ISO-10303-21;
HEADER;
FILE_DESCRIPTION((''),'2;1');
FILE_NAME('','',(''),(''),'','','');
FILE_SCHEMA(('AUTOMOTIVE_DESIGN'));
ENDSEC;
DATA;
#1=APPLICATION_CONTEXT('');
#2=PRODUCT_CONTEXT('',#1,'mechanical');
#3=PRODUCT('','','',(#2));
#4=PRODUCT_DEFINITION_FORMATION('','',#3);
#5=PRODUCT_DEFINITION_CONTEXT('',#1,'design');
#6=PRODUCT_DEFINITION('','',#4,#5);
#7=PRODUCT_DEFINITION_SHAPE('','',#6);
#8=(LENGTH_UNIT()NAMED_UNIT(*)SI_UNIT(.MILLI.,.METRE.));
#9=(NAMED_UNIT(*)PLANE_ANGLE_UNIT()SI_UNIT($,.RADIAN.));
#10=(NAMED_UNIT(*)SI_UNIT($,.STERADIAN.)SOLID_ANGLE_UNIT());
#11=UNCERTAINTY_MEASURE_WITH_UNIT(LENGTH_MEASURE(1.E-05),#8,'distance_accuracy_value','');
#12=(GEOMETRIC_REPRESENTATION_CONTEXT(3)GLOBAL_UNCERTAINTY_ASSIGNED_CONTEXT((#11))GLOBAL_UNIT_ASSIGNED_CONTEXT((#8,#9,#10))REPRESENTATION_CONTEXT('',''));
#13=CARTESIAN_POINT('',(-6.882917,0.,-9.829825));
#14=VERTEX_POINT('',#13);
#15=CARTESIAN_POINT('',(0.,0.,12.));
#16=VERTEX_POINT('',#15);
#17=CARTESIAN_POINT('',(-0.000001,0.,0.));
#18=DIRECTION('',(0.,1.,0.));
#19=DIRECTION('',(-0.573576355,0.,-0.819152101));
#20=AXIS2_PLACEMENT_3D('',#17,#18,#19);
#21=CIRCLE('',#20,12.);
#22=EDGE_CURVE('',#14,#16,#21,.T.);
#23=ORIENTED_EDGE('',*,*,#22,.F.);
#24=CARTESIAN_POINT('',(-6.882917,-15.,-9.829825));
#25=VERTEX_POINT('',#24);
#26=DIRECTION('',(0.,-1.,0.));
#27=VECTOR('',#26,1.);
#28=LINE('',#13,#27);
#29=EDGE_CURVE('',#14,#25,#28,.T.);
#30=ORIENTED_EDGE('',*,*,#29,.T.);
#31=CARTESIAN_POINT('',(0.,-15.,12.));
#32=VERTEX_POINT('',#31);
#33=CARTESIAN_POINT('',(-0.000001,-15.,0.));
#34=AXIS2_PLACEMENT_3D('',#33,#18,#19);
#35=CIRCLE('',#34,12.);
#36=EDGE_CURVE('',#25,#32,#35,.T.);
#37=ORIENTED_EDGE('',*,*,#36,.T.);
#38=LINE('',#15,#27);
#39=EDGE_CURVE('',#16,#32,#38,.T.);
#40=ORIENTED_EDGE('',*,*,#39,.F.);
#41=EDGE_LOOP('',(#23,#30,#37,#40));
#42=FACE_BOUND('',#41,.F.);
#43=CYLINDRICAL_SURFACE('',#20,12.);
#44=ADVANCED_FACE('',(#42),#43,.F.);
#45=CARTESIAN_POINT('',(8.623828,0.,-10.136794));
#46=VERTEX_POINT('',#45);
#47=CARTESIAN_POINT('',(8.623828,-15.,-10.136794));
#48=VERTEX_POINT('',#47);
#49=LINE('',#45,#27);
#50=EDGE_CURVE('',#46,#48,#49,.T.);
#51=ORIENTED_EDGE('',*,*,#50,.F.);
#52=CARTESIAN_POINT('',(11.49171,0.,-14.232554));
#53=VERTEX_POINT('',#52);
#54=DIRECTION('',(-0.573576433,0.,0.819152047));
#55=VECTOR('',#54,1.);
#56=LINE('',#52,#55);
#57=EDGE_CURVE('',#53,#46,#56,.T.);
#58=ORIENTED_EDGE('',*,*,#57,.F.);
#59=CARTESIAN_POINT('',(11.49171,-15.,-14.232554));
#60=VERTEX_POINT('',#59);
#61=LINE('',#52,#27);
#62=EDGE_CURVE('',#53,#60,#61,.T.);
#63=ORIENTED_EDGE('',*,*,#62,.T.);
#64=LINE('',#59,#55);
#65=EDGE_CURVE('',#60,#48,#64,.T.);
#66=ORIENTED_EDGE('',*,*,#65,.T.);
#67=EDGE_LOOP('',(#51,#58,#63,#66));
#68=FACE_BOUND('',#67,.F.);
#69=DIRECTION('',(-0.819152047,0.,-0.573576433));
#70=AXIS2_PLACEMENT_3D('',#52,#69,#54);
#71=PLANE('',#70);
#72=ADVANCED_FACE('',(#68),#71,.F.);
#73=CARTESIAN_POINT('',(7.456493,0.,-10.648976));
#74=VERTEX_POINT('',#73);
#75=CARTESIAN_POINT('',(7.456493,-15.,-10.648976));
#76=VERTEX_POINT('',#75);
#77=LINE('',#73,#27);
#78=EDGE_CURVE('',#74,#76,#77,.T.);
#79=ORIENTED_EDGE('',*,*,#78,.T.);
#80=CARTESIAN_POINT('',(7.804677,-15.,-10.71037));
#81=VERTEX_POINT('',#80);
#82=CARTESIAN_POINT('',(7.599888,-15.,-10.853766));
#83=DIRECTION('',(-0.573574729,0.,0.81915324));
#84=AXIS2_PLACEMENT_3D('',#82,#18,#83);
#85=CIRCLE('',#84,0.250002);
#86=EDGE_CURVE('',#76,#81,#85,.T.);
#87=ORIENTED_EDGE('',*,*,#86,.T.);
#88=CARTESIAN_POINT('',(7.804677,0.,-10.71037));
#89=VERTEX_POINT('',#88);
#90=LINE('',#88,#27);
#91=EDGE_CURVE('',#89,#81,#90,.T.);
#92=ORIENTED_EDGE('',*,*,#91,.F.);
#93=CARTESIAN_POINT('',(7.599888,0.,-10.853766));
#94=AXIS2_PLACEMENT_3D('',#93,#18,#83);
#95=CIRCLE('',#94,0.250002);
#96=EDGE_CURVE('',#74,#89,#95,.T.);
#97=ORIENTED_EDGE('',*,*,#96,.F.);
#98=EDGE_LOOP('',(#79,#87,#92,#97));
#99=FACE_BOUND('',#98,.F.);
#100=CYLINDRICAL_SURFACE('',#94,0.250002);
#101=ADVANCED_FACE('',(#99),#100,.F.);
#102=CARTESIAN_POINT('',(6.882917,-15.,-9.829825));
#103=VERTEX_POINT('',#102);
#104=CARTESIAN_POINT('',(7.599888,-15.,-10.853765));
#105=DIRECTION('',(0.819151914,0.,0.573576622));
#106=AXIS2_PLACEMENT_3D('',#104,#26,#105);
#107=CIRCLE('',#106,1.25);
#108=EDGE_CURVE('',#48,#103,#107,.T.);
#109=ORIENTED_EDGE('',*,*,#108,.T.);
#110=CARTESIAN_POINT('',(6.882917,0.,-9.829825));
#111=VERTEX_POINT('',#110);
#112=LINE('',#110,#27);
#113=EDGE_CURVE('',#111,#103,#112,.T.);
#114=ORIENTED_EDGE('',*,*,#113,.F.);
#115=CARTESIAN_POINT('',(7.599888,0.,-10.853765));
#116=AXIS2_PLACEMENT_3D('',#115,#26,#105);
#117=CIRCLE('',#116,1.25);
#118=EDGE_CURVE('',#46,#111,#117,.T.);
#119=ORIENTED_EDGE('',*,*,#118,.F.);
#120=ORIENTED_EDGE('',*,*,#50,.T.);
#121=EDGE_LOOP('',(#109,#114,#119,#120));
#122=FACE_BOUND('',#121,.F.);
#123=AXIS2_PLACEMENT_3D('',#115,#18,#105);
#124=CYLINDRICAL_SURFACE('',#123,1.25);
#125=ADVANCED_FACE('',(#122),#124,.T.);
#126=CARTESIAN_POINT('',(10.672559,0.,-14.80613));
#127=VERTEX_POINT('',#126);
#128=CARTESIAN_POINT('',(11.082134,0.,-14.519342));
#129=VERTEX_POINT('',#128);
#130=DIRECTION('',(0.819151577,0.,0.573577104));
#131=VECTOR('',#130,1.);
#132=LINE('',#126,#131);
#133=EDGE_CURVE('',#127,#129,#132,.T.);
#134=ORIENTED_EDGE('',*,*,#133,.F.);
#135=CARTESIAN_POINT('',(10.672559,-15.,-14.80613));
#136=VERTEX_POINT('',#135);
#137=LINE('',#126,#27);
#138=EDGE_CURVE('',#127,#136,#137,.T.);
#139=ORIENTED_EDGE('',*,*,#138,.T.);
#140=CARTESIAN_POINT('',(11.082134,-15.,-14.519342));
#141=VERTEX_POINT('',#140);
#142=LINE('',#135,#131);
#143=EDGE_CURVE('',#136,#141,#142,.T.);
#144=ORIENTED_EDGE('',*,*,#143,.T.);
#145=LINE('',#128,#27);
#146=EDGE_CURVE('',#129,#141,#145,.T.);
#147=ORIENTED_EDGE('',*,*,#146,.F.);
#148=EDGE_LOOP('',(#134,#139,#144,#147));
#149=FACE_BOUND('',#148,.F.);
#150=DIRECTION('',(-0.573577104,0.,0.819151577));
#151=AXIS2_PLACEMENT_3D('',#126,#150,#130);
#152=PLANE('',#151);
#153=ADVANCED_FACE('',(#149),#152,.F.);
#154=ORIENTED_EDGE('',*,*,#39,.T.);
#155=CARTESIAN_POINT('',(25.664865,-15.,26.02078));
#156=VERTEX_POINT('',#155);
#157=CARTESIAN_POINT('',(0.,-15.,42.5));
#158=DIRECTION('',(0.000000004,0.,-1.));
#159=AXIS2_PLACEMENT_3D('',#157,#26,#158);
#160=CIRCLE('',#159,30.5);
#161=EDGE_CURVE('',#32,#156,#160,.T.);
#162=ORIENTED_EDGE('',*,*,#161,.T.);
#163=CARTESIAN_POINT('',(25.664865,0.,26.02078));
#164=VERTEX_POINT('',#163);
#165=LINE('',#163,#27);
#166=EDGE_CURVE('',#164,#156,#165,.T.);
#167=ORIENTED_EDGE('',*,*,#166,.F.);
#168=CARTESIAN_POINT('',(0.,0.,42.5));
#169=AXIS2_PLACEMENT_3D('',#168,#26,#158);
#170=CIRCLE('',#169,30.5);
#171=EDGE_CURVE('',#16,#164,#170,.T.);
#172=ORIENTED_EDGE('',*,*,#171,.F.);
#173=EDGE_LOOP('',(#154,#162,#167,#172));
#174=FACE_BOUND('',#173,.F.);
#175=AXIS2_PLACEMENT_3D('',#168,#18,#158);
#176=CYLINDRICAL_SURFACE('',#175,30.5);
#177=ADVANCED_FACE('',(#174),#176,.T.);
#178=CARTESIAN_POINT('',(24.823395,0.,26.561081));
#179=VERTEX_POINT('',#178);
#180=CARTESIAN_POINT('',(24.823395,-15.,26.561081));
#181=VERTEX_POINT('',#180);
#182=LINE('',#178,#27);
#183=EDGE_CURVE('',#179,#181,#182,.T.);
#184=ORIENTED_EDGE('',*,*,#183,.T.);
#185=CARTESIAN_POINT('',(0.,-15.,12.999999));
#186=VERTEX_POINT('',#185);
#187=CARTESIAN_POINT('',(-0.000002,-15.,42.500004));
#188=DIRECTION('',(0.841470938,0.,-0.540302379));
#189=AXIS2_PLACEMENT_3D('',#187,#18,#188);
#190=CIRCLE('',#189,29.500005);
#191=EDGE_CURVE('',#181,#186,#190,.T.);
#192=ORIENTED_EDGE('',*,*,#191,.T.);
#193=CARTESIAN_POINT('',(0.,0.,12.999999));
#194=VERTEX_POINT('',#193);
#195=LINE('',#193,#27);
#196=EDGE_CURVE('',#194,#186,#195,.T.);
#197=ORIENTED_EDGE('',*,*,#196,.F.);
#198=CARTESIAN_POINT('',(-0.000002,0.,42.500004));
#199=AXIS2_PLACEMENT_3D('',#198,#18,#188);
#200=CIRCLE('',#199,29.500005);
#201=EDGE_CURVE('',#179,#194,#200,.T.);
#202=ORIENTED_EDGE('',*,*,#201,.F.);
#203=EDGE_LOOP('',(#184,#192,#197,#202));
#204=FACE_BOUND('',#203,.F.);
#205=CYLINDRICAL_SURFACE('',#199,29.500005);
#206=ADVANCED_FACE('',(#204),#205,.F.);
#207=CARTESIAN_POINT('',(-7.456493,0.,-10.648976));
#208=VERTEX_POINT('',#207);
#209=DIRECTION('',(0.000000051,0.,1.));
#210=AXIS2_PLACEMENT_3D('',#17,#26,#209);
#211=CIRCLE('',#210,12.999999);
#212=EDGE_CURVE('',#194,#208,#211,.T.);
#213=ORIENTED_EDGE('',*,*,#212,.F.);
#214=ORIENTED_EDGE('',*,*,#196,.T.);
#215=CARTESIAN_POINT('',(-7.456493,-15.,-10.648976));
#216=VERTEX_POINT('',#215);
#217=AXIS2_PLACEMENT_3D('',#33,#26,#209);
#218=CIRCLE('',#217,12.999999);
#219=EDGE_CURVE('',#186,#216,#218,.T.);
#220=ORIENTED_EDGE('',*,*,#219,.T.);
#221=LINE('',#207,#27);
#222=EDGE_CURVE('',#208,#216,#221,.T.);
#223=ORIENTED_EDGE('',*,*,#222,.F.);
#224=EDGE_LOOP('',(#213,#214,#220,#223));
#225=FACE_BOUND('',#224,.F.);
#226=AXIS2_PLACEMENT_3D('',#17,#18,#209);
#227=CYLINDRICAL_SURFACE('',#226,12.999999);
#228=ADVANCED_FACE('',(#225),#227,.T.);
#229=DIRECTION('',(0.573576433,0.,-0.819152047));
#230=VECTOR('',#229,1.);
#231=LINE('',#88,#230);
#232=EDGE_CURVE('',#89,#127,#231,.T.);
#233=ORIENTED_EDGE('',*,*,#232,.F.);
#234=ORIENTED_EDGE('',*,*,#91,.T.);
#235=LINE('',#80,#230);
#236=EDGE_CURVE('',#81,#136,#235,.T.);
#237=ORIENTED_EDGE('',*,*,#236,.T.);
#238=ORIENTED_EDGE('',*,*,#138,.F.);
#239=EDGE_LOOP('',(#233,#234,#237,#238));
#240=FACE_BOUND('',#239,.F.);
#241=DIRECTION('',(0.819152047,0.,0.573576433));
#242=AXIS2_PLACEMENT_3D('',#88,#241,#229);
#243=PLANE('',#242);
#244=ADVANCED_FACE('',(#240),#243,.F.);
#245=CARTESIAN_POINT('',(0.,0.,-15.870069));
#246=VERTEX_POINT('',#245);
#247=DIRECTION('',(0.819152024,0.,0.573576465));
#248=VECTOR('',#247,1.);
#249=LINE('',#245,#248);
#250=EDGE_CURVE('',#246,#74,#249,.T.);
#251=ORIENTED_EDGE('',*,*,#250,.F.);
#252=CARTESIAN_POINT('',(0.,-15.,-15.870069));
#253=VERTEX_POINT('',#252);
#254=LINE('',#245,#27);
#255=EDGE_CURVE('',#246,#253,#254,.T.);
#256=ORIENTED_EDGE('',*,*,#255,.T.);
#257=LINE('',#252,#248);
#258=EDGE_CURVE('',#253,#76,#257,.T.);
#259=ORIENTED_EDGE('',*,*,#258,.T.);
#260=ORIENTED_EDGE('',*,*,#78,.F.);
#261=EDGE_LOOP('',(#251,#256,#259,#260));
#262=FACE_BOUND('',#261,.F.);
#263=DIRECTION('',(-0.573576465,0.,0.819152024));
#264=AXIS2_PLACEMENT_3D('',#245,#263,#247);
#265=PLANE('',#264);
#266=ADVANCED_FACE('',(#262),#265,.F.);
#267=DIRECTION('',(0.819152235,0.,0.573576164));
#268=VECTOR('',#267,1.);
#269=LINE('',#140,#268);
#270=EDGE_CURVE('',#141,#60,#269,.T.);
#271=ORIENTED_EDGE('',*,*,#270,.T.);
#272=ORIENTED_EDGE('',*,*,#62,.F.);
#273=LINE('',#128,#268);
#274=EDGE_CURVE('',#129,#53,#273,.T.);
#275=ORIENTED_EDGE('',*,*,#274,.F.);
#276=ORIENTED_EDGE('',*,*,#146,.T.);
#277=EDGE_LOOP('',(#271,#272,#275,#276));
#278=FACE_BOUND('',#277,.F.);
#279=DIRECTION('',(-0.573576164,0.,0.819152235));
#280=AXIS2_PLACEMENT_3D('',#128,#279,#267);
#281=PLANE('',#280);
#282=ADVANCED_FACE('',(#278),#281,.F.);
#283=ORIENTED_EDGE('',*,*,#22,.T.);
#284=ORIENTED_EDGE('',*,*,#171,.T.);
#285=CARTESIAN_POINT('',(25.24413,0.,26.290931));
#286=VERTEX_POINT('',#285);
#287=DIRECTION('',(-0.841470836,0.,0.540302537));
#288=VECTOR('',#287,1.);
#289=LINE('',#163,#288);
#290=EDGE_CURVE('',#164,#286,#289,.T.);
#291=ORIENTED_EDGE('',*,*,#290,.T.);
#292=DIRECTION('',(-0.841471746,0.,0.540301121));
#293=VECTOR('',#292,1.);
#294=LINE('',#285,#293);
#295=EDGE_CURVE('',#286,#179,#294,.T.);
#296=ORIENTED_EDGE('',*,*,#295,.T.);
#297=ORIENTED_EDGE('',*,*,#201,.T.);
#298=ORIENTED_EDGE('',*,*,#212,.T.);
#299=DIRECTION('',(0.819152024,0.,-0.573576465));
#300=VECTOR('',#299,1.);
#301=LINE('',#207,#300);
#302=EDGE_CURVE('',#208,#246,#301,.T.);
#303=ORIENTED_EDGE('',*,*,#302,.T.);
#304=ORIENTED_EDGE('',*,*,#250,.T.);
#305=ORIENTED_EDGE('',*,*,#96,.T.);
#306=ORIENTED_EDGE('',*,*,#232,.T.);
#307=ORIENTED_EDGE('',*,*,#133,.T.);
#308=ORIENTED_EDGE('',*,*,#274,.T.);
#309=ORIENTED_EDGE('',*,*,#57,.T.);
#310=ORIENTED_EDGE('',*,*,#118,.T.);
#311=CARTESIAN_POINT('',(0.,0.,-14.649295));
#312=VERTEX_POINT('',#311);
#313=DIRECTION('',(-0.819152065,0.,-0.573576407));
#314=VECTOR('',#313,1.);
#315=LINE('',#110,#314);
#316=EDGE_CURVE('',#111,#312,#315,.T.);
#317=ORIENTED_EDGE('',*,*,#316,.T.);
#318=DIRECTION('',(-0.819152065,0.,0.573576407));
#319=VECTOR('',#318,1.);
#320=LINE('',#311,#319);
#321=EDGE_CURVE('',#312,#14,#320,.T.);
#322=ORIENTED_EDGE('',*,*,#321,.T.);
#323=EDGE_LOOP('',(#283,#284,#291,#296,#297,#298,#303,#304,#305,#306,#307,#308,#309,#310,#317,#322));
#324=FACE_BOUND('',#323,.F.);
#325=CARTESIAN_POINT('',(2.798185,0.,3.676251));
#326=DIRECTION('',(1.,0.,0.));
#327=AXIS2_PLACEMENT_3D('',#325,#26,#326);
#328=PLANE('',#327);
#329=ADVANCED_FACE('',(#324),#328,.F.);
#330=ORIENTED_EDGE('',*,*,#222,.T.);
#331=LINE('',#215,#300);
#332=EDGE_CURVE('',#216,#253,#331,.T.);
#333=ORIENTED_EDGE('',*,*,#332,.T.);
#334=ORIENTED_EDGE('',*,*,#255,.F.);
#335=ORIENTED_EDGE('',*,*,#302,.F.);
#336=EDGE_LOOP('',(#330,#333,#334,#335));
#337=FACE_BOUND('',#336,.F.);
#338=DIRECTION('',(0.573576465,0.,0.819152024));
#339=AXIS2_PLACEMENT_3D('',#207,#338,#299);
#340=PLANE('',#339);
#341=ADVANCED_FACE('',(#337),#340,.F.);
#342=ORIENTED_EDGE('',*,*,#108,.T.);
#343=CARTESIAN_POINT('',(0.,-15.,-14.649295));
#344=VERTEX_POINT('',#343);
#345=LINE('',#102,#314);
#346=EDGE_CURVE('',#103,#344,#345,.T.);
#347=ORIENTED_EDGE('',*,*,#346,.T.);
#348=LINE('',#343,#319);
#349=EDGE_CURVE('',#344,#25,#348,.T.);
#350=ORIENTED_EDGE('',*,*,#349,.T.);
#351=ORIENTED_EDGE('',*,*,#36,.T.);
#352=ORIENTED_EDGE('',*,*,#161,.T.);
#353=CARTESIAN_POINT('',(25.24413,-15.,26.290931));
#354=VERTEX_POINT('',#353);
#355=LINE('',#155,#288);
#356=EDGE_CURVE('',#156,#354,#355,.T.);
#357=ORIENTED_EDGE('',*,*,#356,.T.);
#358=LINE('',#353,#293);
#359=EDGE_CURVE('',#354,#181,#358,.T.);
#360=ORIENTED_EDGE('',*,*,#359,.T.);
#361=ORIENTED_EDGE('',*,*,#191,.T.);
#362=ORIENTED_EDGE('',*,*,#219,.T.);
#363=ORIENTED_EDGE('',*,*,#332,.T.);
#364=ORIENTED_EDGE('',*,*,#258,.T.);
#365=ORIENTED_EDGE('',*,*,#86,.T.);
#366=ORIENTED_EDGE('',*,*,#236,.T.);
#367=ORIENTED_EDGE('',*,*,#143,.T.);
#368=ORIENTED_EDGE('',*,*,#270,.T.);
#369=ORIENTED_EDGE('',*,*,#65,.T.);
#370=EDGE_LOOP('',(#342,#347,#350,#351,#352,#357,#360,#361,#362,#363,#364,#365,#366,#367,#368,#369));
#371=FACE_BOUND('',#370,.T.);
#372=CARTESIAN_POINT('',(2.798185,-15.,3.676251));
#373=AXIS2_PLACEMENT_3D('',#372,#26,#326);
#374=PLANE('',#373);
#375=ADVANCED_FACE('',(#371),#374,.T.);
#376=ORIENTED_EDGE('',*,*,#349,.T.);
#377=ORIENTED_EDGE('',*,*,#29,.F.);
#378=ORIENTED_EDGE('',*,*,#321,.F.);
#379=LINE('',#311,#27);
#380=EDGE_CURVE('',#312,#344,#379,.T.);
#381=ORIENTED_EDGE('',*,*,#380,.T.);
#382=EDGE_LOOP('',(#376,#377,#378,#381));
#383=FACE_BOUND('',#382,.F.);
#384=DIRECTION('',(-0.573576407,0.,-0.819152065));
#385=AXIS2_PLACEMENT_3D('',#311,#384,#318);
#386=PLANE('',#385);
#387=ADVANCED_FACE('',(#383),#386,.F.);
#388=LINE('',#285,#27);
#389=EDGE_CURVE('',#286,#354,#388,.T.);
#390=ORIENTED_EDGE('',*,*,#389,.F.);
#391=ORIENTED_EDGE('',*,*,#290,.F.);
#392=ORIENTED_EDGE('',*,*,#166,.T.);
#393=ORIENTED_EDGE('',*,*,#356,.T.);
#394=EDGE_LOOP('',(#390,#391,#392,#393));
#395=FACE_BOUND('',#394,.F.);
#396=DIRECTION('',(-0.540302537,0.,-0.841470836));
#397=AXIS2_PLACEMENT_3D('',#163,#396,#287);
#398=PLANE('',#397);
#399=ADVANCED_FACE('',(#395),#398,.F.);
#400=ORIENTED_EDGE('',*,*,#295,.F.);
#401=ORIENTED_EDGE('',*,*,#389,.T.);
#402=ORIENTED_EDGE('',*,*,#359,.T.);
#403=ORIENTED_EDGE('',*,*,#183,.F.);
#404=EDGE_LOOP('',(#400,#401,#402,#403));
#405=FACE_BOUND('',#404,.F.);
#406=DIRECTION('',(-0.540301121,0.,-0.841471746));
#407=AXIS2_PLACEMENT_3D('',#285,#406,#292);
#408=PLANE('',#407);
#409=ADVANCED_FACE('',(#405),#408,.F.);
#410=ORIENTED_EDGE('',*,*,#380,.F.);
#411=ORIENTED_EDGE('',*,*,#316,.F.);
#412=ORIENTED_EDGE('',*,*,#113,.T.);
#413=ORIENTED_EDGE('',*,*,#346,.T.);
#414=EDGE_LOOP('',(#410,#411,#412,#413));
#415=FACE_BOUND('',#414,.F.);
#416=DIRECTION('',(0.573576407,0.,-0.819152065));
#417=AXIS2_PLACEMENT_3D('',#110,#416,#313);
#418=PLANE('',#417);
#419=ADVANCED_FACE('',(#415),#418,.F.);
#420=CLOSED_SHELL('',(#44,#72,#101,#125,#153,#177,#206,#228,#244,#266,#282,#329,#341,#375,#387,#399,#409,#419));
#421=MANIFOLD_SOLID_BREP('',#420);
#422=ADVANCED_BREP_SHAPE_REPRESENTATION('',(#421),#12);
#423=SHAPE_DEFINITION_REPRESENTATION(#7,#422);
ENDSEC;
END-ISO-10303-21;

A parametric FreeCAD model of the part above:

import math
import FreeCAD as App
import Part
import Sketcher
Q = App.Units.Quantity

doc = App.newDocument("Part")
params = doc.addObject("Spreadsheet::Sheet", "Params")
for row, (alias, value) in enumerate([
    ("sketch1_radius", "12 mm"),
    ("sketch1_radius2", "12.999999 mm"),
    ("sketch1_radius3", "30.5 mm"),
    ("sketch1_radius4", "1.25 mm"),
    ("sketch1_length", "5 mm"),
    ("pad1_length", "15 mm"),
], start=1):
    params.set(f"A{row}", alias)
    params.set(f"B{row}", "=" + value)
    params.setAlias(f"B{row}", alias)

body = doc.addObject("PartDesign::Body", "Body")

sketch1 = doc.addObject("Sketcher::SketchObject", "Sketch")
body.addObject(sketch1)
sketch1.AttachmentSupport = (doc.XZ_Plane, [""])
sketch1.MapMode = "FlatFace"
sketch1.addGeometry([
    Part.LineSegment(App.Vector(11.08, -14.52, 0), App.Vector(11.49, -14.23, 0)),
    Part.LineSegment(App.Vector(11.49, -14.23, 0), App.Vector(8.62, -10.14, 0)),
    Part.ArcOfCircle(Part.Circle(App.Vector(7.6, -10.85, 0), App.Vector(0, 0, 1), 1.25), math.radians(35), math.radians(125)),
    Part.LineSegment(App.Vector(6.88, -9.83, 0), App.Vector(0, -14.65, 0)),
    Part.LineSegment(App.Vector(0, -14.65, 0), App.Vector(-6.88, -9.83, 0)),
    Part.ArcOfCircle(Part.Circle(App.Vector(0, 0, 0), App.Vector(0, 0, 1), 12), math.radians(90), math.radians(235)),
    Part.ArcOfCircle(Part.Circle(App.Vector(0, 42.5, 0), App.Vector(0, 0, 1), 30.5), math.radians(-90), math.radians(-33)),
    Part.LineSegment(App.Vector(25.66, 26.02, 0), App.Vector(25.24, 26.29, 0)),
    Part.LineSegment(App.Vector(25.24, 26.29, 0), App.Vector(24.82, 26.56, 0)),
    Part.ArcOfCircle(Part.Circle(App.Vector(0, 42.5, 0), App.Vector(0, 0, 1), 29.5), math.radians(-90), math.radians(-33)),
    Part.ArcOfCircle(Part.Circle(App.Vector(0, 0, 0), App.Vector(0, 0, 1), 13), math.radians(90), math.radians(235)),
    Part.LineSegment(App.Vector(-7.46, -10.65, 0), App.Vector(0, -15.87, 0)),
    Part.LineSegment(App.Vector(0, -15.87, 0), App.Vector(7.46, -10.65, 0)),
    Part.ArcOfCircle(Part.Circle(App.Vector(7.6, -10.85, 0), App.Vector(0, 0, 1), 0.25), math.radians(35), math.radians(125)),
    Part.LineSegment(App.Vector(7.8, -10.71, 0), App.Vector(10.67, -14.81, 0)),
    Part.LineSegment(App.Vector(10.67, -14.81, 0), App.Vector(11.08, -14.52, 0)),
], False)
sketch1.addConstraint([
    Sketcher.Constraint("Coincident", 0, 2, 1, 1),
    Sketcher.Constraint("Tangent", 1, 2, 2, 1),
    Sketcher.Constraint("Tangent", 2, 2, 3, 1),
    Sketcher.Constraint("Coincident", 3, 2, 4, 1),
    Sketcher.Constraint("Tangent", 4, 2, 5, 2),
    Sketcher.Constraint("Tangent", 5, 1, 6, 1),
    Sketcher.Constraint("Coincident", 6, 2, 7, 1),
    Sketcher.Constraint("Coincident", 7, 2, 8, 1),
    Sketcher.Constraint("Coincident", 8, 2, 9, 2),
    Sketcher.Constraint("Tangent", 9, 1, 10, 1),
    Sketcher.Constraint("Tangent", 10, 2, 11, 1),
    Sketcher.Constraint("Coincident", 11, 2, 12, 1),
    Sketcher.Constraint("Coincident", 12, 2, 13, 2),
    Sketcher.Constraint("Coincident", 13, 1, 14, 1),
    Sketcher.Constraint("Coincident", 14, 2, 15, 1),
    Sketcher.Constraint("Coincident", 15, 2, 0, 1),
    Sketcher.Constraint("Coincident", 5, 3, -1, 1),
    Sketcher.Constraint("Coincident", 10, 3, -1, 1),
    Sketcher.Constraint("Coincident", 9, 3, 6, 3),
    Sketcher.Constraint("Coincident", 13, 3, 2, 3),
    Sketcher.Constraint("Symmetric", 2, 2, 4, 2, -2),
    Sketcher.Constraint("Symmetric", 10, 2, 12, 2, -2),
    Sketcher.Constraint("PointOnObject", 6, 3, -2),
    Sketcher.Constraint("PointOnObject", 3, 2, -2),
    Sketcher.Constraint("PointOnObject", 11, 2, -2),
    Sketcher.Constraint("Perpendicular", 0, 1),
    Sketcher.Constraint("Perpendicular", 1, 3),
    Sketcher.Constraint("Parallel", 7, 8),
    Sketcher.Constraint("Parallel", 4, 11),
    Sketcher.Constraint("Perpendicular", 12, 14),
    Sketcher.Constraint("Perpendicular", 14, 15),
    Sketcher.Constraint("Equal", 0, 7),
    Sketcher.Constraint("Equal", 7, 8),
    Sketcher.Constraint("Equal", 1, 14),
    Sketcher.Constraint("Radius", 5, Q("12 mm")),
    Sketcher.Constraint("Radius", 10, Q("12.999999 mm")),
    Sketcher.Constraint("Radius", 6, Q("30.5 mm")),
    Sketcher.Constraint("Angle", 0, Q("34.999981 deg")),
    Sketcher.Constraint("Radius", 2, Q("1.25 mm")),
    Sketcher.Constraint("Distance", 1, Q("5 mm")),
    Sketcher.Constraint("DistanceY", 6, 2, 8, 2, Q("0.540301 mm")),
    Sketcher.Constraint("DistanceY", -1, 1, 6, 2, Q("26.02078 mm")),
])
sketch1.setExpression("Constraints[34]", "Params.sketch1_radius")
sketch1.setExpression("Constraints[35]", "Params.sketch1_radius2")
sketch1.setExpression("Constraints[36]", "Params.sketch1_radius3")
sketch1.setExpression("Constraints[38]", "Params.sketch1_radius4")
sketch1.setExpression("Constraints[39]", "Params.sketch1_length")
pad1 = doc.addObject("PartDesign::Pad", "Pad")
body.addObject(pad1)
pad1.Profile = sketch1
pad1.setExpression("Length", "Params.pad1_length")

doc.recompute()
